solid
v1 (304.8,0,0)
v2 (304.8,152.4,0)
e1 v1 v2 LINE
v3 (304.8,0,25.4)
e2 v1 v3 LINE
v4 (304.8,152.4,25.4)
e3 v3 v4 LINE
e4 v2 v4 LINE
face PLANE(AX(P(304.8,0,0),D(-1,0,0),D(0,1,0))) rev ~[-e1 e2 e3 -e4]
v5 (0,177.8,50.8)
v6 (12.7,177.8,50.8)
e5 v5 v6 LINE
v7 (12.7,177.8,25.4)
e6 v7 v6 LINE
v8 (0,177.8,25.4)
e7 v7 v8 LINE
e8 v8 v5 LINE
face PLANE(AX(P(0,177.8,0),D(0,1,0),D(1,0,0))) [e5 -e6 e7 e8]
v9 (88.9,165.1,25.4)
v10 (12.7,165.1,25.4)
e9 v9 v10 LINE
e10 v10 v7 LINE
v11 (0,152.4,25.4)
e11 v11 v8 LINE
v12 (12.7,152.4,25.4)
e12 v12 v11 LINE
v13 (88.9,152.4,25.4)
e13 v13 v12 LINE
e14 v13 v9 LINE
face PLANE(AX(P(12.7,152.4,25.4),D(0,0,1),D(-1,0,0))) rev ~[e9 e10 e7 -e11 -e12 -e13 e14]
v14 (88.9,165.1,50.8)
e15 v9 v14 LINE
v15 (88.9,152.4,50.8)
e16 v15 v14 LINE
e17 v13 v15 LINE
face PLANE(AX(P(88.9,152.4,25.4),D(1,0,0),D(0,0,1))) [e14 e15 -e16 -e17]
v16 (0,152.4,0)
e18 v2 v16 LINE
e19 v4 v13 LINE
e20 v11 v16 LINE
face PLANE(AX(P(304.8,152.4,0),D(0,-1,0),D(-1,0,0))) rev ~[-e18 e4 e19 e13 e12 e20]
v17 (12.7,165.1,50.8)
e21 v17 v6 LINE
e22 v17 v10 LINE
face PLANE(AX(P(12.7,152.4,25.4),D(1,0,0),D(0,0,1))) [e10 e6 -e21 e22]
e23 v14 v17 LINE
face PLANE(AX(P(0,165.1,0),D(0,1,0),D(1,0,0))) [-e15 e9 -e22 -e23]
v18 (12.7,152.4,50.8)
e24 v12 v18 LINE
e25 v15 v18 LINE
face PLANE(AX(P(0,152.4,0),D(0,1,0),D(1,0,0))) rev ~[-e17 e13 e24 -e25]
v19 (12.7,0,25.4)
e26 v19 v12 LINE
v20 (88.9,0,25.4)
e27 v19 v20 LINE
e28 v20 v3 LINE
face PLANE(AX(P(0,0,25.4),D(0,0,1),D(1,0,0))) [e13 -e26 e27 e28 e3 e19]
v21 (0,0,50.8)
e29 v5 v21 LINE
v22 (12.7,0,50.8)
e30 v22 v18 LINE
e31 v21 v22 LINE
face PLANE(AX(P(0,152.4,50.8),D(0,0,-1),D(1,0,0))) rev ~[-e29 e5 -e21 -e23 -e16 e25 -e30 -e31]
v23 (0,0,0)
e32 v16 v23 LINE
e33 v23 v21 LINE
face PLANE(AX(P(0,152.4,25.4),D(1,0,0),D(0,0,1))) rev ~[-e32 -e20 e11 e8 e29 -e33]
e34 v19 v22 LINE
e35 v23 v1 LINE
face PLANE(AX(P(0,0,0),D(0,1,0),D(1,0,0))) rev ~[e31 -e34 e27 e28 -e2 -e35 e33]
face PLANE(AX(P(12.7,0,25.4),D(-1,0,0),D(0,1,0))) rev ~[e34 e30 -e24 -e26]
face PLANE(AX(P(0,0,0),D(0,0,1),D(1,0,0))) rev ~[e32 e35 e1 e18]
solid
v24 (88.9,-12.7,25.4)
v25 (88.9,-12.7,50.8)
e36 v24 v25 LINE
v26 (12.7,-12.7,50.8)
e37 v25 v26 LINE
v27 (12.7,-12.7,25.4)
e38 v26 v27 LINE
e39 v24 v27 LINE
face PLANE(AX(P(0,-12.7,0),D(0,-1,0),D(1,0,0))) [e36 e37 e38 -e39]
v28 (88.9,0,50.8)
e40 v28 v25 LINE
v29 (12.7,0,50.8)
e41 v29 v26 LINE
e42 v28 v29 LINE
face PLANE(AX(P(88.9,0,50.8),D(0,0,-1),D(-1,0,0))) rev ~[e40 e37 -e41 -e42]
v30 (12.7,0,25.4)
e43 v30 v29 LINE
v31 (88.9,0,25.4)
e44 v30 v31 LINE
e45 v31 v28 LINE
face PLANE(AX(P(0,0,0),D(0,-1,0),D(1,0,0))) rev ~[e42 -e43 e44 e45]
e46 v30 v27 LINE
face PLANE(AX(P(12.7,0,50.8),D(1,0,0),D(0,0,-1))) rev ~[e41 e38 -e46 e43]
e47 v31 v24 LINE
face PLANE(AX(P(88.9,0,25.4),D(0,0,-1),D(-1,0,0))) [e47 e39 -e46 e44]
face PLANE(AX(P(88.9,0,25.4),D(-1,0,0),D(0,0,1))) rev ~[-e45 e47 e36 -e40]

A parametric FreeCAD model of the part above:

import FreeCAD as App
import Part
import Sketcher
from FreeCAD import Vector
Q = App.Units.Quantity


def add_polygon(sketch, points):
    """Adds a closed chain of lines whose ends are joined by coincident constraints."""
    first, n = sketch.GeometryCount, len(points)
    for a, b in zip(points, points[1:] + points[:1]):
        sketch.addGeometry(Part.LineSegment(App.Vector(*a, 0), App.Vector(*b, 0)), False)
    for i in range(n):
        sketch.addConstraint(Sketcher.Constraint("Coincident", first + i, 2, first + (i + 1) % n, 1))

doc = App.newDocument("Part")
body = doc.addObject("PartDesign::Body", "Body")
body.AllowCompound = True

# Sketch on XY plane
sketch1 = body.newObject("Sketcher::SketchObject", "Sketch")
sketch1.AttachmentSupport = (doc.getObject("XY_Plane"), [""])
sketch1.MapMode = "FlatFace"
add_polygon(sketch1, [(0, 152), (0, 0), (305, 0), (305, 152)])  # lines 0-3
sketch1.addConstraint([
    Sketcher.Constraint("Vertical", 0),
    Sketcher.Constraint("Horizontal", 1),
    Sketcher.Constraint("Vertical", 2),
    Sketcher.Constraint("Horizontal", 3),
    Sketcher.Constraint("Coincident", 0, 2, -1, 1),
    Sketcher.Constraint("DistanceX", 1, 1, 1, 2, Q("12 in")),
    Sketcher.Constraint("DistanceY", 0, 2, 0, 1, Q("6 in")),
])
pad1 = body.newObject("PartDesign::Pad", "Pad")
pad1.Profile = sketch1
pad1.Length = Q("1 in")

# Sketch on XY plane
sketch2 = body.newObject("Sketcher::SketchObject", "Sketch001")
sketch2.AttachmentSupport = (doc.getObject("XY_Plane"), [""])
sketch2.MapMode = "FlatFace"
sketch2.AttachmentOffset = App.Placement(Vector(0, 0, 1 * 25.4), App.Rotation())
add_polygon(sketch2, [(0, 152), (0, 0), (13, 0), (13, 152)])  # lines 0-3
sketch2.addConstraint([
    Sketcher.Constraint("Vertical", 0),
    Sketcher.Constraint("Horizontal", 1),
    Sketcher.Constraint("Vertical", 2),
    Sketcher.Constraint("Horizontal", 3),
    Sketcher.Constraint("Coincident", 0, 2, -1, 1),
    Sketcher.Constraint("DistanceX", 1, 1, 1, 2, Q("0.5 in")),
    Sketcher.Constraint("DistanceY", 0, 2, 0, 1, Q("6 in")),
])
pad2 = body.newObject("PartDesign::Pad", "Pad001")
pad2.Profile = sketch2
pad2.Length = Q("1 in")

# Sketch on XZ plane
sketch3 = body.newObject("Sketcher::SketchObject", "Sketch002")
sketch3.AttachmentSupport = (doc.getObject("XZ_Plane"), [""])
sketch3.MapMode = "FlatFace"
sketch3.AttachmentOffset = App.Placement(Vector(0, 0, -6 * 25.4), App.Rotation())
add_polygon(sketch3, [(89, 51), (89, 25), (13, 25), (13, 51)])  # lines 0-3
sketch3.addConstraint([
    Sketcher.Constraint("Vertical", 0),
    Sketcher.Constraint("Horizontal", 1),
    Sketcher.Constraint("Vertical", 2),
    Sketcher.Constraint("Horizontal", 3),
    Sketcher.Constraint("DistanceX", 1, 2, 1, 1, Q("3 in")),
    Sketcher.Constraint("DistanceY", 0, 2, 0, 1, Q("1 in")),
    Sketcher.Constraint("DistanceY", -1, 1, 0, 2, Q("1 in")),
    Sketcher.Constraint("DistanceX", -1, 1, 0, 2, Q("3.5 in")),
])
pad3 = body.newObject("PartDesign::Pad", "Pad002")
pad3.Profile = sketch3
pad3.Length = Q("0.5 in")
pad3.Reversed = True

# Sketch on XZ plane
sketch4 = body.newObject("Sketcher::SketchObject", "Sketch003")
sketch4.AttachmentSupport = (doc.getObject("XZ_Plane"), [""])
sketch4.MapMode = "FlatFace"
add_polygon(sketch4, [(13, 25), (89, 25), (89, 51), (13, 51)])  # lines 0-3
sketch4.addConstraint([
    Sketcher.Constraint("Horizontal", 0),
    Sketcher.Constraint("Vertical", 1),
    Sketcher.Constraint("Horizontal", 2),
    Sketcher.Constraint("Vertical", 3),
    Sketcher.Constraint("DistanceX", 0, 1, 0, 2, Q("3 in")),
    Sketcher.Constraint("DistanceY", 1, 1, 1, 2, Q("1 in")),
    Sketcher.Constraint("DistanceY", -1, 1, 0, 2, Q("1 in")),
    Sketcher.Constraint("DistanceX", -1, 1, 0, 2, Q("3.5 in")),
])
pad4 = body.newObject("PartDesign::Pad", "Pad003")
pad4.Profile = sketch4
pad4.Length = Q("0.5 in")

# Sketch on XZ plane
sketch5 = body.newObject("Sketcher::SketchObject", "Sketch004")
sketch5.AttachmentSupport = (doc.getObject("XZ_Plane"), [""])
sketch5.MapMode = "FlatFace"
sketch5.AttachmentOffset = App.Placement(Vector(0, 0, -6 * 25.4), App.Rotation())
add_polygon(sketch5, [(13, 51), (13, 25), (0, 25), (0, 51)])  # lines 0-3
sketch5.addConstraint([
    Sketcher.Constraint("Vertical", 0),
    Sketcher.Constraint("Horizontal", 1),
    Sketcher.Constraint("Vertical", 2),
    Sketcher.Constraint("Horizontal", 3),
    Sketcher.Constraint("PointOnObject", 1, 2, -2),
    Sketcher.Constraint("DistanceY", 0, 2, 0, 1, Q("1 in")),
    Sketcher.Constraint("DistanceX", 1, 2, 1, 1, Q("0.5 in")),
    Sketcher.Constraint("DistanceY", -1, 1, 0, 2, Q("1 in")),
])
pad5 = body.newObject("PartDesign::Pad", "Pad004")
pad5.Profile = sketch5
pad5.Length = Q("1 in")
pad5.Reversed = True

doc.recompute()
